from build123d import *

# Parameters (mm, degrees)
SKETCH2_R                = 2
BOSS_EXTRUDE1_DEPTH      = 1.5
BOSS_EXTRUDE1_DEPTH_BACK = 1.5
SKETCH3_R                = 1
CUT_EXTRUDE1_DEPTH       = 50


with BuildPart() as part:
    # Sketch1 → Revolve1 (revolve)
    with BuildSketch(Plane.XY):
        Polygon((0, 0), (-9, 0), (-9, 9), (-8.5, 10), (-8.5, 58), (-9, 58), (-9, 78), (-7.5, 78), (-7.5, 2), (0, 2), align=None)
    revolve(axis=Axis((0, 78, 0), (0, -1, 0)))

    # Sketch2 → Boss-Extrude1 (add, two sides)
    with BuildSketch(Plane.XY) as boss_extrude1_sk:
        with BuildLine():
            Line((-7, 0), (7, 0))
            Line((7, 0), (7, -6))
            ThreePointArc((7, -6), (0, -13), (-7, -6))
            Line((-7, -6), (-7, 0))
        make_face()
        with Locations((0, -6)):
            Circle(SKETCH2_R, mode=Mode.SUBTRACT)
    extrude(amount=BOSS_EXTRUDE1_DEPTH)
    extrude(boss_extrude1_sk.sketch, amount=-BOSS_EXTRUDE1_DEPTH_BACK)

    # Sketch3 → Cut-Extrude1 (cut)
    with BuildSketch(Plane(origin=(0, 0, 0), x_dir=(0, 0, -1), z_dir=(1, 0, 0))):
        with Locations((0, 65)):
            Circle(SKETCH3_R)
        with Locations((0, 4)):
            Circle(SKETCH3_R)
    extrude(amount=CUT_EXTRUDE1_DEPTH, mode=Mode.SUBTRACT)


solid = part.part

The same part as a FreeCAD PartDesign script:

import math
import FreeCAD as App
import Part
import Sketcher

doc = App.newDocument("Part")
body = doc.addObject("PartDesign::Body", "Body")

sketch1 = body.newObject("Sketcher::SketchObject", "Sketch")
sketch1.AttachmentSupport = (doc.getObject("XY_Plane"), [""])
sketch1.MapMode = "FlatFace"
sketch1.addGeometry(Part.LineSegment(App.Vector(-9, 0, 0), App.Vector(0, 0, 0)), False)
sketch1.addGeometry(Part.LineSegment(App.Vector(0, 0, 0), App.Vector(0, 2, 0)), False)
sketch1.addGeometry(Part.LineSegment(App.Vector(0, 2, 0), App.Vector(-7.5, 2, 0)), False)
sketch1.addGeometry(Part.LineSegment(App.Vector(-7.5, 2, 0), App.Vector(-7.5, 78, 0)), False)
sketch1.addGeometry(Part.LineSegment(App.Vector(-7.5, 78, 0), App.Vector(-9, 78, 0)), False)
sketch1.addGeometry(Part.LineSegment(App.Vector(-9, 78, 0), App.Vector(-9, 58, 0)), False)
sketch1.addGeometry(Part.LineSegment(App.Vector(-9, 58, 0), App.Vector(-8.5, 58, 0)), False)
sketch1.addGeometry(Part.LineSegment(App.Vector(-8.5, 58, 0), App.Vector(-8.5, 10, 0)), False)
sketch1.addGeometry(Part.LineSegment(App.Vector(-8.5, 10, 0), App.Vector(-9, 9, 0)), False)
sketch1.addGeometry(Part.LineSegment(App.Vector(-9, 9, 0), App.Vector(-9, 0, 0)), False)
sketch1.addConstraint(Sketcher.Constraint("Coincident", 0, 2, 1, 1))
sketch1.addConstraint(Sketcher.Constraint("Coincident", 1, 2, 2, 1))
sketch1.addConstraint(Sketcher.Constraint("Coincident", 2, 2, 3, 1))
sketch1.addConstraint(Sketcher.Constraint("Coincident", 3, 2, 4, 1))
sketch1.addConstraint(Sketcher.Constraint("Coincident", 4, 2, 5, 1))
sketch1.addConstraint(Sketcher.Constraint("Coincident", 5, 2, 6, 1))
sketch1.addConstraint(Sketcher.Constraint("Coincident", 6, 2, 7, 1))
sketch1.addConstraint(Sketcher.Constraint("Coincident", 7, 2, 8, 1))
sketch1.addConstraint(Sketcher.Constraint("Coincident", 8, 2, 9, 1))
sketch1.addConstraint(Sketcher.Constraint("Coincident", 9, 2, 0, 1))
sketch1.addConstraint(Sketcher.Constraint("Horizontal", 0))
sketch1.addConstraint(Sketcher.Constraint("Vertical", 1))
sketch1.addConstraint(Sketcher.Constraint("Horizontal", 2))
sketch1.addConstraint(Sketcher.Constraint("Vertical", 3))
sketch1.addConstraint(Sketcher.Constraint("Horizontal", 4))
sketch1.addConstraint(Sketcher.Constraint("Vertical", 5))
sketch1.addConstraint(Sketcher.Constraint("Horizontal", 6))
sketch1.addConstraint(Sketcher.Constraint("Vertical", 7))
sketch1.addConstraint(Sketcher.Constraint("Vertical", 9))
sketch1.addConstraint(Sketcher.Constraint("Coincident", 0, 2, -1, 1))
sketch1.addConstraint(Sketcher.Constraint("Vertical", 5, 2, 8, 2))
sketch1.addConstraint(Sketcher.Constraint("Equal", 0, 9))
sketch1.addConstraint(Sketcher.Constraint("DistanceX", 0, 1, 0, 2, 9.0))
sketch1.addConstraint(Sketcher.Constraint("DistanceY", 1, 1, 1, 2, 2.0))
sketch1.addConstraint(Sketcher.Constraint("DistanceY", 3, 1, 3, 2, 76.0))
sketch1.addConstraint(Sketcher.Constraint("DistanceY", 5, 2, 5, 1, 20.0))
sketch1.addConstraint(Sketcher.Constraint("DistanceY", 7, 2, 7, 1, 48.0))
sketch1.addConstraint(Sketcher.Constraint("DistanceX", 2, 2, 2, 1, 7.5))
sketch1.addConstraint(Sketcher.Constraint("DistanceX", 6, 1, 6, 2, 0.5))
revolution = body.newObject("PartDesign::Revolution", "Revolution")
revolution.Profile = sketch1
revolution.ReferenceAxis = (sketch1, ["V_Axis"])
revolution.Angle = 360

sketch2 = body.newObject("Sketcher::SketchObject", "Sketch001")
sketch2.AttachmentSupport = (doc.getObject("XY_Plane"), [""])
sketch2.MapMode = "FlatFace"
sketch2.addGeometry(Part.LineSegment(App.Vector(7, 0, 0), App.Vector(-7, 0, 0)), False)
sketch2.addGeometry(Part.LineSegment(App.Vector(-7, 0, 0), App.Vector(-7, -6, 0)), False)
sketch2.addGeometry(Part.ArcOfCircle(Part.Circle(App.Vector(0, -6, 0), App.Vector(0, 0, 1), 7), math.radians(180), math.radians(360)), False)
sketch2.addGeometry(Part.LineSegment(App.Vector(7, -6, 0), App.Vector(7, 0, 0)), False)
sketch2.addGeometry(Part.Circle(App.Vector(0, -6, 0), App.Vector(0, 0, 1), 2), False)
sketch2.addConstraint(Sketcher.Constraint("Coincident", 0, 2, 1, 1))
sketch2.addConstraint(Sketcher.Constraint("Tangent", 1, 2, 2, 1))
sketch2.addConstraint(Sketcher.Constraint("Tangent", 2, 2, 3, 1))
sketch2.addConstraint(Sketcher.Constraint("Coincident", 3, 2, 0, 1))
sketch2.addConstraint(Sketcher.Constraint("Horizontal", 0))
sketch2.addConstraint(Sketcher.Constraint("Vertical", 1))
sketch2.addConstraint(Sketcher.Constraint("Vertical", 3))
sketch2.addConstraint(Sketcher.Constraint("Coincident", 4, 3, 2, 3))
sketch2.addConstraint(Sketcher.Constraint("Symmetric", 0, 2, 3, 2, -1, 1))
sketch2.addConstraint(Sketcher.Constraint("Diameter", 4, 4.0))
sketch2.addConstraint(Sketcher.Constraint("Radius", 2, 7.0))
sketch2.addConstraint(Sketcher.Constraint("DistanceY", 1, 2, 1, 1, 6.0))
pad1 = body.newObject("PartDesign::Pad", "Pad")
pad1.Profile = sketch2
pad1.Type = "TwoLengths"
pad1.Length = 1.5
pad1.Length2 = 1.5

sketch3 = body.newObject("Sketcher::SketchObject", "Sketch002")
sketch3.AttachmentSupport = (doc.getObject("YZ_Plane"), [""])
sketch3.MapMode = "FlatFace"
sketch3.addGeometry(Part.Circle(App.Vector(65, 0, 0), App.Vector(0, 0, 1), 1), False)
sketch3.addGeometry(Part.Circle(App.Vector(4, 0, 0), App.Vector(0, 0, 1), 1), False)
sketch3.addConstraint(Sketcher.Constraint("Equal", 0, 1))
sketch3.addConstraint(Sketcher.Constraint("PointOnObject", 0, 3, -1))
sketch3.addConstraint(Sketcher.Constraint("PointOnObject", 1, 3, -1))
sketch3.addConstraint(Sketcher.Constraint("Diameter", 0, 2.0))
sketch3.addConstraint(Sketcher.Constraint("DistanceX", -1, 1, 0, 3, 65.0))
sketch3.addConstraint(Sketcher.Constraint("DistanceX", -1, 1, 1, 3, 4.0))
pocket1 = body.newObject("PartDesign::Pocket", "Pocket")
pocket1.Profile = sketch3
pocket1.Length = 50
pocket1.Reversed = True

doc.recompute()
